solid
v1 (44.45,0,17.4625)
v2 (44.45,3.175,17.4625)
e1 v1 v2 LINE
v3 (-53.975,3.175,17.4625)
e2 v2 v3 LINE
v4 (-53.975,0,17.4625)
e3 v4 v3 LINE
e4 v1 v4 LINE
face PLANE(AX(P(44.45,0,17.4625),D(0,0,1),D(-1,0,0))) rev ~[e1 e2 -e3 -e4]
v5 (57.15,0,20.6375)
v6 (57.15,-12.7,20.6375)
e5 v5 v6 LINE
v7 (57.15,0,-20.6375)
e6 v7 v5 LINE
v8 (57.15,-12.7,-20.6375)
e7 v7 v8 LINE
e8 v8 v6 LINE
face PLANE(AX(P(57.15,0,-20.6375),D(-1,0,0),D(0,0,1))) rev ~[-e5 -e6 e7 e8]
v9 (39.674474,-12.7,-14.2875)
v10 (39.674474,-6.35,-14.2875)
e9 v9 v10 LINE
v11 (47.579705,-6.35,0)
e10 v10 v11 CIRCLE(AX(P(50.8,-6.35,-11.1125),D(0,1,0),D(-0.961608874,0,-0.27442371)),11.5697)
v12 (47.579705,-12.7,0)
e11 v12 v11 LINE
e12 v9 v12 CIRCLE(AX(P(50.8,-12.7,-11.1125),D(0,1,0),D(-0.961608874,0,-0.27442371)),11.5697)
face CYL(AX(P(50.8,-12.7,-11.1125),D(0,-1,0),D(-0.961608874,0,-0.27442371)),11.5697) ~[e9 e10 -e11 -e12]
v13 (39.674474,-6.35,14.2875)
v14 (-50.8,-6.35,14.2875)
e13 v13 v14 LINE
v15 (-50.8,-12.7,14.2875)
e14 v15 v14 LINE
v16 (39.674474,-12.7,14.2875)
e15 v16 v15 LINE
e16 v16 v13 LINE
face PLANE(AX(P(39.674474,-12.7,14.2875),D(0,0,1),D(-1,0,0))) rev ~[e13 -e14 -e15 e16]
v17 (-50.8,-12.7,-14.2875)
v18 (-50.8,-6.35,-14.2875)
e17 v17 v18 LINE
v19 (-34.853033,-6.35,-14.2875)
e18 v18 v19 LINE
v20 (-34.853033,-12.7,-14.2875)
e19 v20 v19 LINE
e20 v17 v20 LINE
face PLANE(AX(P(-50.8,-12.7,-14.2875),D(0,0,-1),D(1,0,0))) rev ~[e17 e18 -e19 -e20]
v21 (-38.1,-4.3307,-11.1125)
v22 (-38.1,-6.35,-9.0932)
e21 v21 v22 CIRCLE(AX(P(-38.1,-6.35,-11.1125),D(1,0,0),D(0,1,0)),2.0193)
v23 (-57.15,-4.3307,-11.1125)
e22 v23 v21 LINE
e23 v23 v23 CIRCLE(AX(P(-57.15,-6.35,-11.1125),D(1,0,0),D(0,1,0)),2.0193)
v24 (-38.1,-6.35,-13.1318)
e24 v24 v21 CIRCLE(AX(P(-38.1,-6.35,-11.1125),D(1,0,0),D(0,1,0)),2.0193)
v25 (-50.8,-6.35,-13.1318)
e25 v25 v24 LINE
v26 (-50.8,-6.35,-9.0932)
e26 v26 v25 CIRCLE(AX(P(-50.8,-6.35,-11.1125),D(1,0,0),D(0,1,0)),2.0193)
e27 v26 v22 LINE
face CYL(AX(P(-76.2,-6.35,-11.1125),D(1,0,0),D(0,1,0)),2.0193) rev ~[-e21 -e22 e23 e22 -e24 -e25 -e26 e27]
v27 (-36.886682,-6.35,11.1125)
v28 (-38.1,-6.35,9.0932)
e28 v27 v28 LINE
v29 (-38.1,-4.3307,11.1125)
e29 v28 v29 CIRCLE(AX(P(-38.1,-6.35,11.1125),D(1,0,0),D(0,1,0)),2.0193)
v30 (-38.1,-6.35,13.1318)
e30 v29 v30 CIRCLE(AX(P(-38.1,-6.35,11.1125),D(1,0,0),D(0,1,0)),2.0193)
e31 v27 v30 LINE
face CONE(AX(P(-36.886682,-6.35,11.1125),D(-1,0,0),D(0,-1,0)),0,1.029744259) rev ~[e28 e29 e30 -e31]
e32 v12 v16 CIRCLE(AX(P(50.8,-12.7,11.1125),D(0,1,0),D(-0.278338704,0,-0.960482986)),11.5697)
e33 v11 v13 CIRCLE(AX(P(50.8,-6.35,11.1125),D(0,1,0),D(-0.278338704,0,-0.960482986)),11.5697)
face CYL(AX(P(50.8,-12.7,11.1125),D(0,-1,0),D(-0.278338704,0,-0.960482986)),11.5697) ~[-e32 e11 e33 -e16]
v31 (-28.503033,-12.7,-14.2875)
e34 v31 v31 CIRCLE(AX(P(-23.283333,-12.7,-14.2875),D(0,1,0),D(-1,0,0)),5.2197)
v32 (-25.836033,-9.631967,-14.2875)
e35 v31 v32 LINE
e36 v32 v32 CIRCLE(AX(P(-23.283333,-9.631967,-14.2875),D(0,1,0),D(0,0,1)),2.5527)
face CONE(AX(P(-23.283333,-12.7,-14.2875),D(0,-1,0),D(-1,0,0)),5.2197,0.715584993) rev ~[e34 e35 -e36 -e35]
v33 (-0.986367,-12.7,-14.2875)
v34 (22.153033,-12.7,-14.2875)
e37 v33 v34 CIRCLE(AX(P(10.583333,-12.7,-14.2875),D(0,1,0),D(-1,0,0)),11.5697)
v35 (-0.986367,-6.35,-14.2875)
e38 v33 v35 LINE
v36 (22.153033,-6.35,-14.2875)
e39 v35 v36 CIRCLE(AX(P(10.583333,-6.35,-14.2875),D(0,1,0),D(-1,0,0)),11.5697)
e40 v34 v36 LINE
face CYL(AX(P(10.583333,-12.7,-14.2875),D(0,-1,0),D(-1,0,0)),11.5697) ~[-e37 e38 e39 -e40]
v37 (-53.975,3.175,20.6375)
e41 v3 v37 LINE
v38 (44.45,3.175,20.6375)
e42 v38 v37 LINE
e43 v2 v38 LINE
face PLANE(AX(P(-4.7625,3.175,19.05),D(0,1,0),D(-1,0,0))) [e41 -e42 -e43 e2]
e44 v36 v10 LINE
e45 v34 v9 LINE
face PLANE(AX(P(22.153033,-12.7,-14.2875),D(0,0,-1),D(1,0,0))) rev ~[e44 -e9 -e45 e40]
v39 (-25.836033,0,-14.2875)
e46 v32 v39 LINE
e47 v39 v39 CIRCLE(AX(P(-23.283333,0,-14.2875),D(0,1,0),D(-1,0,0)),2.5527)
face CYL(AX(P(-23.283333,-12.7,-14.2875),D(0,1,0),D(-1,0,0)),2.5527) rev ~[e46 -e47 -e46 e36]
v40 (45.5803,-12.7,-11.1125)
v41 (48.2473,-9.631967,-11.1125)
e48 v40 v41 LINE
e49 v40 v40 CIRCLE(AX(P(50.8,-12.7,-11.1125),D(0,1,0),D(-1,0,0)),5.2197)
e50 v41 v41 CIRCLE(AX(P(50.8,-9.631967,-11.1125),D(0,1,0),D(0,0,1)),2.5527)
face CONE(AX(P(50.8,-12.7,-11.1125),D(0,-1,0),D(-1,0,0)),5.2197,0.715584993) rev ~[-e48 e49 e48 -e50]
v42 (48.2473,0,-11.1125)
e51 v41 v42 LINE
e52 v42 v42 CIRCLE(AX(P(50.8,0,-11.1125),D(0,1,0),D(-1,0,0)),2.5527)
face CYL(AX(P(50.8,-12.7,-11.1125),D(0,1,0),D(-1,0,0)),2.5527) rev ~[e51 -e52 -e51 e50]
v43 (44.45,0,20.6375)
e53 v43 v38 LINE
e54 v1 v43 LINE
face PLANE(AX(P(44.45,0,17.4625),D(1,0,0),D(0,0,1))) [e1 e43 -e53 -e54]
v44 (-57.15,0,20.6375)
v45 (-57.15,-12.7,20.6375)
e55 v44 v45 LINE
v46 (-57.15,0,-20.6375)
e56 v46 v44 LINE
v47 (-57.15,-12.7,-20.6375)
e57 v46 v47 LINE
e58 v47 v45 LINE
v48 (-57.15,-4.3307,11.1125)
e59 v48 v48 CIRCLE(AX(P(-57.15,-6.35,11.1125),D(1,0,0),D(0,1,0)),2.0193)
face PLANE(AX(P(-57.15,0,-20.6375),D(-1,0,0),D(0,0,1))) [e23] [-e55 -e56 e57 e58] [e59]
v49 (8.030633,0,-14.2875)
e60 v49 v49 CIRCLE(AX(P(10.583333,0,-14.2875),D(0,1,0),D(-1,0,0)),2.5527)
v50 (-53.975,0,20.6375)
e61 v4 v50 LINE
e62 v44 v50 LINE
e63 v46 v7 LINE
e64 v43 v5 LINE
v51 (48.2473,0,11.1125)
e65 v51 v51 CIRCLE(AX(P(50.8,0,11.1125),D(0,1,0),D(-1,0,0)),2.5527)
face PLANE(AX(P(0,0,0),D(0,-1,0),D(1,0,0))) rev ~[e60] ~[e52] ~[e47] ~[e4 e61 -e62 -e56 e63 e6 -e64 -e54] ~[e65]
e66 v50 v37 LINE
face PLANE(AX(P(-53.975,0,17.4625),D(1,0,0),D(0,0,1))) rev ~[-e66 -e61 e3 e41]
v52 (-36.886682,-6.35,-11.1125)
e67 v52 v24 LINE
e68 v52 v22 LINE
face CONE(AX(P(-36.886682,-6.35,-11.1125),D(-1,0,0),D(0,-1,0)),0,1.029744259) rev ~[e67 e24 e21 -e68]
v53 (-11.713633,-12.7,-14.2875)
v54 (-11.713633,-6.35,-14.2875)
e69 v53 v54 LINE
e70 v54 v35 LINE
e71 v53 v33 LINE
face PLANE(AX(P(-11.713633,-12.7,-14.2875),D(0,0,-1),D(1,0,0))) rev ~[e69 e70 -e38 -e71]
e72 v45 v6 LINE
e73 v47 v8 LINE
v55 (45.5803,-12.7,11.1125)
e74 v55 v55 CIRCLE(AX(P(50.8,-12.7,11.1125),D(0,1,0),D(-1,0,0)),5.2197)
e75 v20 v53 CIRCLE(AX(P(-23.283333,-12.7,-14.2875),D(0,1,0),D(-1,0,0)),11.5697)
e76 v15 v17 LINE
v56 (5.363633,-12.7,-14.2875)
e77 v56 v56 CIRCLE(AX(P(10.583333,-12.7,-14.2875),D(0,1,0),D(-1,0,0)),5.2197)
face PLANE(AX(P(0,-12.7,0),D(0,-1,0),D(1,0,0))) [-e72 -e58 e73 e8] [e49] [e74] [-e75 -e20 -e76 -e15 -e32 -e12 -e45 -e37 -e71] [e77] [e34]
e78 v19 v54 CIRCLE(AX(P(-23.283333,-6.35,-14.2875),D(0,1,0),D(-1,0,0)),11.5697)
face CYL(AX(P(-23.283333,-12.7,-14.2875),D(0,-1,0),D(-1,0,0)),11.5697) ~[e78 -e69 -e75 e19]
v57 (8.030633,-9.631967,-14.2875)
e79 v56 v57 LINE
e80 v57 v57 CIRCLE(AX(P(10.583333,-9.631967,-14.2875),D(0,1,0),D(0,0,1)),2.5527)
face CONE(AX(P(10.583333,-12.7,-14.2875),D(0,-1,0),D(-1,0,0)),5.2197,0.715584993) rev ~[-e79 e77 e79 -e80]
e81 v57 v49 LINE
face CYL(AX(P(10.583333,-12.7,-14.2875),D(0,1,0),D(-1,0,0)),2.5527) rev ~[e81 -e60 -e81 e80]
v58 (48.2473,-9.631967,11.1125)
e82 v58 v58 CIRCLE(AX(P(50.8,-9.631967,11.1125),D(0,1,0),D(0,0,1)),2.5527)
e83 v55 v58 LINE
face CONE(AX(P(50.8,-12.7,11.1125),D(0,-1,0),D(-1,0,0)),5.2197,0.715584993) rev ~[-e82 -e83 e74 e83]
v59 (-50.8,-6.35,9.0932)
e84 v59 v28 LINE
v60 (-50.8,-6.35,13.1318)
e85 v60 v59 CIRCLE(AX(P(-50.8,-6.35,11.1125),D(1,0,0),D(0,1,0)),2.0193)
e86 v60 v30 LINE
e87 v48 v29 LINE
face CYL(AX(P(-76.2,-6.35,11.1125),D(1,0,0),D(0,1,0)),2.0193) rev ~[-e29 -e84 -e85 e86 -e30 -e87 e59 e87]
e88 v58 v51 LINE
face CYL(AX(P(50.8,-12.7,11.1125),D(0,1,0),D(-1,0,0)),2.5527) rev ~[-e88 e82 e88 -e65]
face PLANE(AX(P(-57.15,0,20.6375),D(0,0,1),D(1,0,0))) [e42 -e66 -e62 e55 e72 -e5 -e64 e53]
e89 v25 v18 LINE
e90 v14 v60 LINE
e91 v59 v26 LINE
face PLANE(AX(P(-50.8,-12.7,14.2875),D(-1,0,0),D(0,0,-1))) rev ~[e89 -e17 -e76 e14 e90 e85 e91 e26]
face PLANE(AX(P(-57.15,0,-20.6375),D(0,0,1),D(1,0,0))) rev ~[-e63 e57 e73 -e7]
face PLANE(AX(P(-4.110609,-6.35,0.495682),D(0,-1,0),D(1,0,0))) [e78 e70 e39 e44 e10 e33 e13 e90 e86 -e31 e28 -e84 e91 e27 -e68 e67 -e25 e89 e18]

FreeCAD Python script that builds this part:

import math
import FreeCAD as App
import Part
import Sketcher
Q = App.Units.Quantity

doc = App.newDocument("Part")
body = doc.addObject("PartDesign::Body", "Body")

# Sketch on XZ plane
sketch1 = body.newObject("Sketcher::SketchObject", "Sketch")
sketch1.AttachmentSupport = (doc.getObject("XZ_Plane"), [""])
sketch1.MapMode = "FlatFace"
sketch1.addGeometry([
    Part.LineSegment(App.Vector(-57.15, 20.6375, 0), App.Vector(-57.15, -20.6375, 0)),
    Part.LineSegment(App.Vector(-57.15, -20.6375, 0), App.Vector(57.15, -20.6375, 0)),
    Part.LineSegment(App.Vector(57.15, -20.6375, 0), App.Vector(57.15, 20.6375, 0)),
    Part.LineSegment(App.Vector(57.15, 20.6375, 0), App.Vector(-57.15, 20.6375, 0)),
], False)
sketch1.addConstraint([
    Sketcher.Constraint("Coincident", 0, 2, 1, 1),
    Sketcher.Constraint("Coincident", 1, 2, 2, 1),
    Sketcher.Constraint("Coincident", 2, 2, 3, 1),
    Sketcher.Constraint("Coincident", 3, 2, 0, 1),
    Sketcher.Constraint("Vertical", 0),
    Sketcher.Constraint("Horizontal", 1),
    Sketcher.Constraint("Vertical", 2),
    Sketcher.Constraint("Horizontal", 3),
    Sketcher.Constraint("Symmetric", 0, 2, 2, 2, -1, 1),
    Sketcher.Constraint("DistanceX", 1, 1, 1, 2, Q("4.5 in")),
    Sketcher.Constraint("DistanceY", 0, 2, 0, 1, Q("1.625 in")),
])
pad1 = body.newObject("PartDesign::Pad", "Pad")
pad1.Profile = sketch1
pad1.Length = Q("0.5 in")

# Sketch on XZ plane
sketch2 = body.newObject("Sketcher::SketchObject", "Sketch001")
sketch2.AttachmentSupport = (doc.getObject("XZ_Plane"), [""])
sketch2.MapMode = "FlatFace"
sketch2.AttachmentOffset = App.Placement(App.Vector(0, 0, 0.5 * 25.4), App.Rotation())
sketch2.addGeometry([
    Part.Circle(App.Vector(50.8, 11.1125, 0), App.Vector(0, 0, 1), 2.5527),
    Part.Circle(App.Vector(50.8, -11.1125, 0), App.Vector(0, 0, 1), 2.5527),
    Part.Circle(App.Vector(-23.283333, -14.2875, 0), App.Vector(0, 0, 1), 2.5527),
    Part.Circle(App.Vector(10.583333, -14.2875, 0), App.Vector(0, 0, 1), 2.5527),
], False)
sketch2.addConstraint([
    Sketcher.Constraint("Equal", 0, 1),
    Sketcher.Constraint("Equal", 1, 2),
    Sketcher.Constraint("Equal", 2, 3),
    Sketcher.Constraint("Symmetric", 0, 3, 1, 3, -1),
    Sketcher.Constraint("Horizontal", 2, 3, 3, 3),
    Sketcher.Constraint("Diameter", 0, Q("0.201 in")),
    Sketcher.Constraint("DistanceX", -1, 1, 0, 3, Q("2 in")),
    Sketcher.Constraint("DistanceY", 2, 3, 0, 3, Q("1 in")),
    Sketcher.Constraint("DistanceY", -1, 1, 0, 3, Q("0.4375 in")),
    Sketcher.Constraint("DistanceX", 2, 3, -1, 1, Q("23.283333 mm")),
    Sketcher.Constraint("DistanceX", -1, 1, 3, 3, Q("10.583333 mm")),
])
doc.recompute()
hole = body.newObject("PartDesign::Hole", "Hole")
hole.Profile = sketch2
hole.ThreadType = "None"
hole.Diameter = Q("0.201 in")
hole.DepthType = "ThroughAll"
hole.HoleCutType = "Countersink"
hole.HoleCutDiameter = Q("0.411 in")
hole.HoleCutCountersinkAngle = 82

# Sketch on YZ plane
sketch3 = body.newObject("Sketcher::SketchObject", "Sketch002")
sketch3.AttachmentSupport = (doc.getObject("YZ_Plane"), [""])
sketch3.MapMode = "FlatFace"
sketch3.AttachmentOffset = App.Placement(App.Vector(0, 0, -2.25 * 25.4), App.Rotation())
sketch3.addGeometry([
    Part.Circle(App.Vector(-6.35, 11.1125, 0), App.Vector(0, 0, 1), 2.0193),
    Part.Circle(App.Vector(-6.35, -11.1125, 0), App.Vector(0, 0, 1), 2.0193),
], False)
sketch3.addConstraint([
    Sketcher.Constraint("Equal", 0, 1),
    Sketcher.Constraint("Symmetric", 0, 3, 1, 3, -1),
    Sketcher.Constraint("Diameter", 0, Q("0.159 in")),
    Sketcher.Constraint("DistanceX", 0, 3, -1, 1, Q("0.25 in")),
    Sketcher.Constraint("DistanceY", -1, 1, 0, 3, Q("0.4375 in")),
])
doc.recompute()
hole2 = body.newObject("PartDesign::Hole", "Hole001")
hole2.Profile = sketch3
hole2.ThreadType = "None"
hole2.Diameter = Q("0.159 in")
hole2.DepthType = "Dimension"
hole2.Depth = Q("0.75 in")
hole2.DrillPoint = "Angled"
hole2.DrillPointAngle = 118
hole2.Reversed = True

# Sketch on XZ plane
sketch4 = body.newObject("Sketcher::SketchObject", "Sketch003")
sketch4.AttachmentSupport = (doc.getObject("XZ_Plane"), [""])
sketch4.MapMode = "FlatFace"
sketch4.addGeometry([
    Part.LineSegment(App.Vector(44.45, 20.6375, 0), App.Vector(44.45, 17.4625, 0)),
    Part.LineSegment(App.Vector(44.45, 17.4625, 0), App.Vector(-53.975, 17.4625, 0)),
    Part.LineSegment(App.Vector(-53.975, 17.4625, 0), App.Vector(-53.975, 20.6375, 0)),
    Part.LineSegment(App.Vector(-53.975, 20.6375, 0), App.Vector(44.45, 20.6375, 0)),
], False)
sketch4.addConstraint([
    Sketcher.Constraint("Coincident", 0, 2, 1, 1),
    Sketcher.Constraint("Coincident", 1, 2, 2, 1),
    Sketcher.Constraint("Coincident", 2, 2, 3, 1),
    Sketcher.Constraint("Coincident", 3, 2, 0, 1),
    Sketcher.Constraint("Vertical", 0),
    Sketcher.Constraint("Horizontal", 1),
    Sketcher.Constraint("Vertical", 2),
    Sketcher.Constraint("Horizontal", 3),
    Sketcher.Constraint("DistanceX", 1, 2, 1, 1, Q("3.875 in")),
    Sketcher.Constraint("DistanceY", 0, 2, 0, 1, Q("0.125 in")),
    Sketcher.Constraint("DistanceX", -1, 1, 0, 2, Q("1.75 in")),
    Sketcher.Constraint("DistanceY", -1, 1, 0, 2, Q("0.6875 in")),
])
pad2 = body.newObject("PartDesign::Pad", "Pad001")
pad2.Profile = sketch4
pad2.Length = Q("0.125 in")
pad2.Reversed = True

# Sketch on XZ plane
sketch5 = body.newObject("Sketcher::SketchObject", "Sketch004")
sketch5.AttachmentSupport = (doc.getObject("XZ_Plane"), [""])
sketch5.MapMode = "FlatFace"
sketch5.AttachmentOffset = App.Placement(App.Vector(0, 0, 0.5 * 25.4), App.Rotation())
sketch5.addGeometry([
    Part.LineSegment(App.Vector(39.674474, 14.2875, 0), App.Vector(-50.8, 14.2875, 0)),  # 0
    Part.LineSegment(App.Vector(-50.8, 14.2875, 0), App.Vector(-50.8, -14.2875, 0)),  # 1
    Part.LineSegment(App.Vector(-50.8, -14.2875, 0), App.Vector(-34.853033, -14.2875, 0)),  # 2
    Part.ArcOfCircle(Part.Circle(App.Vector(-23.283333, -14.2875, 0), App.Vector(0, 0, 1), 11.5697), math.radians(0), math.radians(180)),  # 3
    Part.LineSegment(App.Vector(-11.713633, -14.2875, 0), App.Vector(-0.986367, -14.2875, 0)),  # 4
    Part.ArcOfCircle(Part.Circle(App.Vector(10.583333, -14.2875, 0), App.Vector(0, 0, 1), 11.5697), math.radians(0), math.radians(180)),  # 5
    Part.LineSegment(App.Vector(22.153033, -14.2875, 0), App.Vector(39.674474, -14.2875, 0)),  # 6
    Part.ArcOfCircle(Part.Circle(App.Vector(50.8, -11.1125, 0), App.Vector(0, 0, 1), 11.5697), math.radians(106.161078), math.radians(195.927674)),  # 7
    Part.ArcOfCircle(Part.Circle(App.Vector(50.8, 11.1125, 0), App.Vector(0, 0, 1), 11.5697), math.radians(164.072326), math.radians(253.838922)),  # 8
], False)
sketch5.addConstraint([
    Sketcher.Constraint("Coincident", 0, 2, 1, 1),
    Sketcher.Constraint("Coincident", 1, 2, 2, 1),
    Sketcher.Constraint("Coincident", 2, 2, 3, 2),
    Sketcher.Constraint("Coincident", 3, 1, 4, 1),
    Sketcher.Constraint("Coincident", 4, 2, 5, 2),
    Sketcher.Constraint("Coincident", 5, 1, 6, 1),
    Sketcher.Constraint("Coincident", 6, 2, 7, 2),
    Sketcher.Constraint("Coincident", 7, 1, 8, 2),
    Sketcher.Constraint("Coincident", 8, 1, 0, 1),
    Sketcher.Constraint("Horizontal", 0),
    Sketcher.Constraint("Vertical", 1),
    Sketcher.Constraint("Horizontal", 2),
    Sketcher.Constraint("Horizontal", 4),
    Sketcher.Constraint("Horizontal", 6),
    Sketcher.Constraint("Equal", 3, 5),
    Sketcher.Constraint("Equal", 5, 7),
    Sketcher.Constraint("Equal", 7, 8),
    Sketcher.Constraint("Symmetric", 7, 3, 8, 3, -1),
    Sketcher.Constraint("Horizontal", 3, 3, 5, 3),
    Sketcher.Constraint("Horizontal", 5, 3, 1, 2),
    Sketcher.Constraint("Horizontal", 2, 2, 3, 1),
    Sketcher.Constraint("Horizontal", 4, 2, 5, 1),
    Sketcher.Constraint("Vertical", 6, 2, 8, 1),
    Sketcher.Constraint("DistanceX", -1, 1, 7, 3, Q("2 in")),
    Sketcher.Constraint("DistanceX", 0, 2, -1, 1, Q("2 in")),
    Sketcher.Constraint("DistanceY", 5, 3, 8, 3, Q("1 in")),
    Sketcher.Constraint("Radius", 3, Q("0.4555 in")),
    Sketcher.Constraint("DistanceY", 1, 2, 1, 1, Q("1.125 in")),
    Sketcher.Constraint("DistanceX", 6, 1, 6, 2, Q("17.52144 mm")),
    Sketcher.Constraint("DistanceX", 2, 1, 2, 2, Q("15.946967 mm")),
])
pocket1 = body.newObject("PartDesign::Pocket", "Pocket")
pocket1.Profile = sketch5
pocket1.Length = Q("0.25 in")

doc.recompute()
